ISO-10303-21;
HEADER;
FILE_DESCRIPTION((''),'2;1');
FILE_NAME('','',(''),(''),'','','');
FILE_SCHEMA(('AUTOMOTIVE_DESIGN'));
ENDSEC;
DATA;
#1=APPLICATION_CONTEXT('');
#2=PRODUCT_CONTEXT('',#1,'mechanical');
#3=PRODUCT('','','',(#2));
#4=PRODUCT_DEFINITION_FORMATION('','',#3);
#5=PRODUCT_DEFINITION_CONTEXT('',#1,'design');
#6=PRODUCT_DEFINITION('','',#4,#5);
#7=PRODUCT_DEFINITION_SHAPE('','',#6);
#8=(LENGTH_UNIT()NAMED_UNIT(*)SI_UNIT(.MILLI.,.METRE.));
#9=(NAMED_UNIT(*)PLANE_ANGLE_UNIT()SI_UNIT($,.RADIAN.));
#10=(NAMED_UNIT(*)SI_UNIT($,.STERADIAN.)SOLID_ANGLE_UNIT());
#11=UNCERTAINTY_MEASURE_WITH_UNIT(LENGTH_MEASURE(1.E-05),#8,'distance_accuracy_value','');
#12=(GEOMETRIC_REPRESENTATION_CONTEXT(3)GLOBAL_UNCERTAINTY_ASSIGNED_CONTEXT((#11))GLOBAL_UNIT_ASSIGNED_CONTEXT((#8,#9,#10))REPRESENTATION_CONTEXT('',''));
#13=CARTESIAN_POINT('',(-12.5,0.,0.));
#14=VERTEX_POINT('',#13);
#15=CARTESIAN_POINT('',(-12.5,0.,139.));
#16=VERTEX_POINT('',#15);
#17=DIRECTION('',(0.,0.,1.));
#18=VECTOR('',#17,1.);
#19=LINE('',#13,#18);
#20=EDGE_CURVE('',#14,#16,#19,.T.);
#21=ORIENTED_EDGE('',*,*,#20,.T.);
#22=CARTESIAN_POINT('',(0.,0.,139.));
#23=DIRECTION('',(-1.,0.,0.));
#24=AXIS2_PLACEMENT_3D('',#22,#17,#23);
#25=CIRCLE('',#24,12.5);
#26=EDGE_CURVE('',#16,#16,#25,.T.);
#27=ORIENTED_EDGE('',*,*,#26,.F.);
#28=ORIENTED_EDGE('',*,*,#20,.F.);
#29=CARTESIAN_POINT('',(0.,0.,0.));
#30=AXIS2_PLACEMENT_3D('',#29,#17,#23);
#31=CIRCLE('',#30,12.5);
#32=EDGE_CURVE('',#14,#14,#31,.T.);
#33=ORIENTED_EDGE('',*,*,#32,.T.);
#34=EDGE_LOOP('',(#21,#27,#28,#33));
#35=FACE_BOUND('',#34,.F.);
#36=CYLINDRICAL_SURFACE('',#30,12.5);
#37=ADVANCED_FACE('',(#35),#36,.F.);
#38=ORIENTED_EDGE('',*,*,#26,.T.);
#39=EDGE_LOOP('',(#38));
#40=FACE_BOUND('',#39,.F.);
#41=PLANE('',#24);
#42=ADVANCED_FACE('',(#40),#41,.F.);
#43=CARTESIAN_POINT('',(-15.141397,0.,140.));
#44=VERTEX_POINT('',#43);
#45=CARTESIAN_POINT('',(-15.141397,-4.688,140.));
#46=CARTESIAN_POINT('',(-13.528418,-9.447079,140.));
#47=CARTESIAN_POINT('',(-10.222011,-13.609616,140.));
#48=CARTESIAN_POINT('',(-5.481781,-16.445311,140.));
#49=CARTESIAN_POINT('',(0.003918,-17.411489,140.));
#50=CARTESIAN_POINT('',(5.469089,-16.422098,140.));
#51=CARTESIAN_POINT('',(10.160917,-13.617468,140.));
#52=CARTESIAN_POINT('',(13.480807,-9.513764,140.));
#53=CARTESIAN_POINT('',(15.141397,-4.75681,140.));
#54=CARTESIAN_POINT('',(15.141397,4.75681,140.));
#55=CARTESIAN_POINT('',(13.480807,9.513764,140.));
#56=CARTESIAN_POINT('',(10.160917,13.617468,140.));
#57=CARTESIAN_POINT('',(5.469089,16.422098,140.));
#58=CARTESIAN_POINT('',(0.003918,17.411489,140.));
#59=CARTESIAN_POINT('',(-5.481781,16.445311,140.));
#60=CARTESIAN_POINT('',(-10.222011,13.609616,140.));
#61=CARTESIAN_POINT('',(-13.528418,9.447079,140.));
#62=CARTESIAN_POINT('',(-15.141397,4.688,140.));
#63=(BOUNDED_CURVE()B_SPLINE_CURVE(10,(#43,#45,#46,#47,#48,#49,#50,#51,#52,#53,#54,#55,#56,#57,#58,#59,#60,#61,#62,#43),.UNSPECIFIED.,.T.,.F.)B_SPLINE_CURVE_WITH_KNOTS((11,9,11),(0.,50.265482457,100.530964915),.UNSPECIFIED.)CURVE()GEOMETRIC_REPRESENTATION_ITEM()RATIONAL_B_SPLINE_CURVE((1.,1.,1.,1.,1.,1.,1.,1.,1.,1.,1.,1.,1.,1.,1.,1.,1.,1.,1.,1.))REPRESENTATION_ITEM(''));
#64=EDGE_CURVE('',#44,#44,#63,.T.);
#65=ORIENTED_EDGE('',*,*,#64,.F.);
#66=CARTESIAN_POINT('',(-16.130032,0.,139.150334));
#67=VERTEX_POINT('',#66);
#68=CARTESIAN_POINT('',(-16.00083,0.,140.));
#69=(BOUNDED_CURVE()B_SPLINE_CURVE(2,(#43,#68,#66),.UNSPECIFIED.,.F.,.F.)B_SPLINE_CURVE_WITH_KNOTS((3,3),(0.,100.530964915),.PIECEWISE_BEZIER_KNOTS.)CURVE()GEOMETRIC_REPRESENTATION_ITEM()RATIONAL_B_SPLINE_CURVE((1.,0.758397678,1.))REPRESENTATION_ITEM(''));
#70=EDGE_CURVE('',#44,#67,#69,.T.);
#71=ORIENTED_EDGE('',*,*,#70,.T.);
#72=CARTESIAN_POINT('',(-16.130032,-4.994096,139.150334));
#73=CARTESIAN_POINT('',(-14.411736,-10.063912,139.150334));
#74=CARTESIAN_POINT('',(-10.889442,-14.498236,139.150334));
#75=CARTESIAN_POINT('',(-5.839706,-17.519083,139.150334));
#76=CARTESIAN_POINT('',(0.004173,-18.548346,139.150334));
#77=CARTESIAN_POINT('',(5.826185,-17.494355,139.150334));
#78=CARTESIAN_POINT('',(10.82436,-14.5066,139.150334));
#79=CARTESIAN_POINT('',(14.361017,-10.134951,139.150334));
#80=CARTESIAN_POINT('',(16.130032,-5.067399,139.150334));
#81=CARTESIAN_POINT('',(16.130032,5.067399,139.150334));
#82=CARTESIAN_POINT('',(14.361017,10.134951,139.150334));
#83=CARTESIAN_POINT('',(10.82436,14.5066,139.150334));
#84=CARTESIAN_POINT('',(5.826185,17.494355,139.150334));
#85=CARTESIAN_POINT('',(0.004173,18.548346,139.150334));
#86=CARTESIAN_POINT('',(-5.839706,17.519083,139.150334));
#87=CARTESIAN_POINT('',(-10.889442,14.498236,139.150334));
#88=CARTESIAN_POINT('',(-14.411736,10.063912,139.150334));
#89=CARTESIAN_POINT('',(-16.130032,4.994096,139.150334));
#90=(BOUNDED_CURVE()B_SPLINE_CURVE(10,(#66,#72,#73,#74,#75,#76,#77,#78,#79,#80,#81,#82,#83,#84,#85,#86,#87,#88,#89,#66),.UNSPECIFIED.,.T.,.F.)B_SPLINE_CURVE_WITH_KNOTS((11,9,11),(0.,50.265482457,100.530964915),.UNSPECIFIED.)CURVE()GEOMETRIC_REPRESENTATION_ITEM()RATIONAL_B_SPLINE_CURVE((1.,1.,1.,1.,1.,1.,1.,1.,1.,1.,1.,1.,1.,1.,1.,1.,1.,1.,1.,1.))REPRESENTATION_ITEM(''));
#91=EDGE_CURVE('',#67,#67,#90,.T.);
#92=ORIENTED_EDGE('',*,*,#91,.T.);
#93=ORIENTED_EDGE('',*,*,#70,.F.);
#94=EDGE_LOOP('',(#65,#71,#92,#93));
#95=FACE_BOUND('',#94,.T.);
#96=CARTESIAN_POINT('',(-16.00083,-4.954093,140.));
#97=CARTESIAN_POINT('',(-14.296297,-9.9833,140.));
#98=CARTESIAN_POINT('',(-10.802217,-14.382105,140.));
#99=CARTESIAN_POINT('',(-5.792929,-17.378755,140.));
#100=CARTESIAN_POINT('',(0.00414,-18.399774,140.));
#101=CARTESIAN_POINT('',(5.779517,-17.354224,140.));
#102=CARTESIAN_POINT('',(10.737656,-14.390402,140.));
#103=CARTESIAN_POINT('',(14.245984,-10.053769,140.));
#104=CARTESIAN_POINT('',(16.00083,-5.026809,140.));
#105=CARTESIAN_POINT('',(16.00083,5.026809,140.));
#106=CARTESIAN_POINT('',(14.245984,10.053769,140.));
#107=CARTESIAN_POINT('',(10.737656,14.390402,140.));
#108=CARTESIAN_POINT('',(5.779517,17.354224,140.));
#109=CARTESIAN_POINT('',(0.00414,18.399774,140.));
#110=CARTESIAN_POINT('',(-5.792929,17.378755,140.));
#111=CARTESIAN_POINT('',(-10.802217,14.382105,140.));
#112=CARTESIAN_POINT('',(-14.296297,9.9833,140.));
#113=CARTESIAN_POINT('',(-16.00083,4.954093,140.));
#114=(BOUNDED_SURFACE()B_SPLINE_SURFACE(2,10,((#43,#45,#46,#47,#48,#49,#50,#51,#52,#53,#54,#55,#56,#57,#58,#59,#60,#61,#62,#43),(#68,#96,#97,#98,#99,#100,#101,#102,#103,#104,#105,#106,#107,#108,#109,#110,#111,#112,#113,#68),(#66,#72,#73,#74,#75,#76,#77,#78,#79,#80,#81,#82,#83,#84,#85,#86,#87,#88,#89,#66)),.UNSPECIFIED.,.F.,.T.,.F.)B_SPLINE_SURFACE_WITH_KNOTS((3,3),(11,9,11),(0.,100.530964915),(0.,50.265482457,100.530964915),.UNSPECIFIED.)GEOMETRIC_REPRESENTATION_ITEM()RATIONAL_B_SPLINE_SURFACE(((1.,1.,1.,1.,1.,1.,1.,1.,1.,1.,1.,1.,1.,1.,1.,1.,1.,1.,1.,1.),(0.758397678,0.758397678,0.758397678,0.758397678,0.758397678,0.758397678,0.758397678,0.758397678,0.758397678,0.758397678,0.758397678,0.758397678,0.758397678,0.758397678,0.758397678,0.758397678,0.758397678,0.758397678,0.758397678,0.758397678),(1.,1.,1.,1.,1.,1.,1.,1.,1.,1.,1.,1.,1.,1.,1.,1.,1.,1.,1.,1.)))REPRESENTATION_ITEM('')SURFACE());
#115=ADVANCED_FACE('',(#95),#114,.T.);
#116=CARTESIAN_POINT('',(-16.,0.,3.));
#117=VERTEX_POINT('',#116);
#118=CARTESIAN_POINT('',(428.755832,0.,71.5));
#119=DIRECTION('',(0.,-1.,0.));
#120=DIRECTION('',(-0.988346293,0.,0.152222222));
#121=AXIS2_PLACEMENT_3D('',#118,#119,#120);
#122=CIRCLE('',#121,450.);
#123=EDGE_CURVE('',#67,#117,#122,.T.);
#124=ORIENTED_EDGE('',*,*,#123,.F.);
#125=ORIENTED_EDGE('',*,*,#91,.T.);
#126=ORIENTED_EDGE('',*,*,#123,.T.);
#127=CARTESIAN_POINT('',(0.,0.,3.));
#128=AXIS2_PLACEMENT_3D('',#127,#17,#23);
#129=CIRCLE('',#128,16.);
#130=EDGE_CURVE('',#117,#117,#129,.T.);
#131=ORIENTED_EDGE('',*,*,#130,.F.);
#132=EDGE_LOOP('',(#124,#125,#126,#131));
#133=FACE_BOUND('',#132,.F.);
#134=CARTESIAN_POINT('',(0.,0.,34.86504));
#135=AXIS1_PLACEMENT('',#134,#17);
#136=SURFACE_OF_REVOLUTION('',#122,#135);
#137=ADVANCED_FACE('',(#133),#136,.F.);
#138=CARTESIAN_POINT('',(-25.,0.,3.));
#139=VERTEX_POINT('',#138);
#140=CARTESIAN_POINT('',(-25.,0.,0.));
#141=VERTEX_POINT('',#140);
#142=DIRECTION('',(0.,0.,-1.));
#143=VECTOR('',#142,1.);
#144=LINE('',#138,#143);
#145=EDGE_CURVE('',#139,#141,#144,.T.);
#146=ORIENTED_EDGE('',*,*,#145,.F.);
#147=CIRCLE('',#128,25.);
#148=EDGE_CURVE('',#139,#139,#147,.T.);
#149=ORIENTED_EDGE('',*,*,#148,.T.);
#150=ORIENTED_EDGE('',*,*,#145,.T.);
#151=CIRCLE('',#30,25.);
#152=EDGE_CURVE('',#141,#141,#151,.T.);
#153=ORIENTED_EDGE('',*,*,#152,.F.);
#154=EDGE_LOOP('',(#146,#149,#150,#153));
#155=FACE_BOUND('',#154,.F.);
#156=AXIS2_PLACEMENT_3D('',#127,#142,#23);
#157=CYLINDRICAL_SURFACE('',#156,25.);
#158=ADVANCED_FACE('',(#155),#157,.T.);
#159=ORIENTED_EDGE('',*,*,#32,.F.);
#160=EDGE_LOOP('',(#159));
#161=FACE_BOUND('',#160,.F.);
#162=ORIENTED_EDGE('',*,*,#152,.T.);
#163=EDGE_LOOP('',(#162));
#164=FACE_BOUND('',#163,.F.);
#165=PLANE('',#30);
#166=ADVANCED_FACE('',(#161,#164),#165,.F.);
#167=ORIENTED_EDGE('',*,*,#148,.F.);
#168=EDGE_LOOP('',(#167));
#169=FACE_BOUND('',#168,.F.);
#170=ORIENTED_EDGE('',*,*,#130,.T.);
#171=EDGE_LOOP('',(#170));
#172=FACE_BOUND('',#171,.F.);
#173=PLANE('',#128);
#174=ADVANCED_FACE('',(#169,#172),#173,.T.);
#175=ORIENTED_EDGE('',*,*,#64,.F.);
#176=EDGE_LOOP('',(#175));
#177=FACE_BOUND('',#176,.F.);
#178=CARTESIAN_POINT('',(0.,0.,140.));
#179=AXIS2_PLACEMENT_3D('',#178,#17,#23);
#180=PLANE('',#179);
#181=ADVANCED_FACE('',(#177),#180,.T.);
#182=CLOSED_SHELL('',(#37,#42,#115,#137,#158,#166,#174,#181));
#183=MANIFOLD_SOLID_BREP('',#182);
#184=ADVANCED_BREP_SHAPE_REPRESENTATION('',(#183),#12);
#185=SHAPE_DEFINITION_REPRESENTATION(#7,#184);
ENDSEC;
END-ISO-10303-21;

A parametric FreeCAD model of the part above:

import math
import FreeCAD as App
import Part
import Sketcher
from FreeCAD import Vector


def edges_at(feature, points):
    """Names of the edges that pass closest to the given points."""
    edges = feature.Shape.Edges
    near = lambda p: min(range(len(edges)), key=lambda i: edges[i].distToShape(Part.Vertex(*p))[0])
    return sorted({f"Edge{near(p) + 1}" for p in points})

doc = App.newDocument("Part")
body = doc.addObject("PartDesign::Body", "Body")

sketch1 = body.newObject("Sketcher::SketchObject", "Sketch")
sketch1.AttachmentSupport = (doc.getObject("XZ_Plane"), [""])
sketch1.MapMode = "FlatFace"
sketch1.addGeometry([
    Part.LineSegment(Vector(-25, 3, 0), Vector(-25, 0, 0)),
    Part.LineSegment(Vector(-25, 0, 0), Vector(-12.5, 0, 0)),
    Part.LineSegment(Vector(-12.5, 0, 0), Vector(-12.5, 139, 0)),
    Part.LineSegment(Vector(-12.5, 139, 0), Vector(0, 139, 0)),
    Part.LineSegment(Vector(0, 139, 0), Vector(0, 140, 0)),
    Part.LineSegment(Vector(0, 140, 0), Vector(-16, 140, 0)),
    Part.ArcOfCircle(Part.Circle(Vector(428.8, 71.5, 0), Vector(0, 0, 1), 450), math.radians(171.24), math.radians(188.76)),
    Part.LineSegment(Vector(-16, 3, 0), Vector(-25, 3, 0)),
], False)
sketch1.addConstraint([
    Sketcher.Constraint("Coincident", 0, 2, 1, 1),
    Sketcher.Constraint("Coincident", 1, 2, 2, 1),
    Sketcher.Constraint("Coincident", 2, 2, 3, 1),
    Sketcher.Constraint("Coincident", 3, 2, 4, 1),
    Sketcher.Constraint("Coincident", 4, 2, 5, 1),
    Sketcher.Constraint("Coincident", 5, 2, 6, 1),
    Sketcher.Constraint("Coincident", 6, 2, 7, 1),
    Sketcher.Constraint("Coincident", 7, 2, 0, 1),
    Sketcher.Constraint("Vertical", 0),
    Sketcher.Constraint("Horizontal", 1),
    Sketcher.Constraint("Vertical", 2),
    Sketcher.Constraint("Horizontal", 3),
    Sketcher.Constraint("Vertical", 4),
    Sketcher.Constraint("Horizontal", 5),
    Sketcher.Constraint("Horizontal", 7),
    Sketcher.Constraint("PointOnObject", 0, 2, -1),
    Sketcher.Constraint("PointOnObject", 3, 2, -2),
    Sketcher.Constraint("Vertical", 5, 2, 6, 2),
    Sketcher.Constraint("Equal", 1, 3),
    Sketcher.Constraint("Radius", 6, 450.0),
    Sketcher.Constraint("DistanceX", 5, 2, 5, 1, 16.0),
    Sketcher.Constraint("DistanceX", 7, 2, 7, 1, 9.0),
    Sketcher.Constraint("DistanceY", 0, 2, 0, 1, 3.0),
    Sketcher.Constraint("DistanceY", 2, 1, 2, 2, 139.0),
    Sketcher.Constraint("DistanceY", 4, 1, 4, 2, 1.0),
])
revolution = body.newObject("PartDesign::Revolution", "Revolution")
revolution.Profile = sketch1
revolution.ReferenceAxis = (sketch1, ["V_Axis"])
revolution.Angle = 360
doc.recompute()

fillet = body.newObject("PartDesign::Fillet", "Fillet")
fillet.Base = (revolution, edges_at(revolution, [(16, 0, 140)]))
fillet.Radius = 1

doc.recompute()
